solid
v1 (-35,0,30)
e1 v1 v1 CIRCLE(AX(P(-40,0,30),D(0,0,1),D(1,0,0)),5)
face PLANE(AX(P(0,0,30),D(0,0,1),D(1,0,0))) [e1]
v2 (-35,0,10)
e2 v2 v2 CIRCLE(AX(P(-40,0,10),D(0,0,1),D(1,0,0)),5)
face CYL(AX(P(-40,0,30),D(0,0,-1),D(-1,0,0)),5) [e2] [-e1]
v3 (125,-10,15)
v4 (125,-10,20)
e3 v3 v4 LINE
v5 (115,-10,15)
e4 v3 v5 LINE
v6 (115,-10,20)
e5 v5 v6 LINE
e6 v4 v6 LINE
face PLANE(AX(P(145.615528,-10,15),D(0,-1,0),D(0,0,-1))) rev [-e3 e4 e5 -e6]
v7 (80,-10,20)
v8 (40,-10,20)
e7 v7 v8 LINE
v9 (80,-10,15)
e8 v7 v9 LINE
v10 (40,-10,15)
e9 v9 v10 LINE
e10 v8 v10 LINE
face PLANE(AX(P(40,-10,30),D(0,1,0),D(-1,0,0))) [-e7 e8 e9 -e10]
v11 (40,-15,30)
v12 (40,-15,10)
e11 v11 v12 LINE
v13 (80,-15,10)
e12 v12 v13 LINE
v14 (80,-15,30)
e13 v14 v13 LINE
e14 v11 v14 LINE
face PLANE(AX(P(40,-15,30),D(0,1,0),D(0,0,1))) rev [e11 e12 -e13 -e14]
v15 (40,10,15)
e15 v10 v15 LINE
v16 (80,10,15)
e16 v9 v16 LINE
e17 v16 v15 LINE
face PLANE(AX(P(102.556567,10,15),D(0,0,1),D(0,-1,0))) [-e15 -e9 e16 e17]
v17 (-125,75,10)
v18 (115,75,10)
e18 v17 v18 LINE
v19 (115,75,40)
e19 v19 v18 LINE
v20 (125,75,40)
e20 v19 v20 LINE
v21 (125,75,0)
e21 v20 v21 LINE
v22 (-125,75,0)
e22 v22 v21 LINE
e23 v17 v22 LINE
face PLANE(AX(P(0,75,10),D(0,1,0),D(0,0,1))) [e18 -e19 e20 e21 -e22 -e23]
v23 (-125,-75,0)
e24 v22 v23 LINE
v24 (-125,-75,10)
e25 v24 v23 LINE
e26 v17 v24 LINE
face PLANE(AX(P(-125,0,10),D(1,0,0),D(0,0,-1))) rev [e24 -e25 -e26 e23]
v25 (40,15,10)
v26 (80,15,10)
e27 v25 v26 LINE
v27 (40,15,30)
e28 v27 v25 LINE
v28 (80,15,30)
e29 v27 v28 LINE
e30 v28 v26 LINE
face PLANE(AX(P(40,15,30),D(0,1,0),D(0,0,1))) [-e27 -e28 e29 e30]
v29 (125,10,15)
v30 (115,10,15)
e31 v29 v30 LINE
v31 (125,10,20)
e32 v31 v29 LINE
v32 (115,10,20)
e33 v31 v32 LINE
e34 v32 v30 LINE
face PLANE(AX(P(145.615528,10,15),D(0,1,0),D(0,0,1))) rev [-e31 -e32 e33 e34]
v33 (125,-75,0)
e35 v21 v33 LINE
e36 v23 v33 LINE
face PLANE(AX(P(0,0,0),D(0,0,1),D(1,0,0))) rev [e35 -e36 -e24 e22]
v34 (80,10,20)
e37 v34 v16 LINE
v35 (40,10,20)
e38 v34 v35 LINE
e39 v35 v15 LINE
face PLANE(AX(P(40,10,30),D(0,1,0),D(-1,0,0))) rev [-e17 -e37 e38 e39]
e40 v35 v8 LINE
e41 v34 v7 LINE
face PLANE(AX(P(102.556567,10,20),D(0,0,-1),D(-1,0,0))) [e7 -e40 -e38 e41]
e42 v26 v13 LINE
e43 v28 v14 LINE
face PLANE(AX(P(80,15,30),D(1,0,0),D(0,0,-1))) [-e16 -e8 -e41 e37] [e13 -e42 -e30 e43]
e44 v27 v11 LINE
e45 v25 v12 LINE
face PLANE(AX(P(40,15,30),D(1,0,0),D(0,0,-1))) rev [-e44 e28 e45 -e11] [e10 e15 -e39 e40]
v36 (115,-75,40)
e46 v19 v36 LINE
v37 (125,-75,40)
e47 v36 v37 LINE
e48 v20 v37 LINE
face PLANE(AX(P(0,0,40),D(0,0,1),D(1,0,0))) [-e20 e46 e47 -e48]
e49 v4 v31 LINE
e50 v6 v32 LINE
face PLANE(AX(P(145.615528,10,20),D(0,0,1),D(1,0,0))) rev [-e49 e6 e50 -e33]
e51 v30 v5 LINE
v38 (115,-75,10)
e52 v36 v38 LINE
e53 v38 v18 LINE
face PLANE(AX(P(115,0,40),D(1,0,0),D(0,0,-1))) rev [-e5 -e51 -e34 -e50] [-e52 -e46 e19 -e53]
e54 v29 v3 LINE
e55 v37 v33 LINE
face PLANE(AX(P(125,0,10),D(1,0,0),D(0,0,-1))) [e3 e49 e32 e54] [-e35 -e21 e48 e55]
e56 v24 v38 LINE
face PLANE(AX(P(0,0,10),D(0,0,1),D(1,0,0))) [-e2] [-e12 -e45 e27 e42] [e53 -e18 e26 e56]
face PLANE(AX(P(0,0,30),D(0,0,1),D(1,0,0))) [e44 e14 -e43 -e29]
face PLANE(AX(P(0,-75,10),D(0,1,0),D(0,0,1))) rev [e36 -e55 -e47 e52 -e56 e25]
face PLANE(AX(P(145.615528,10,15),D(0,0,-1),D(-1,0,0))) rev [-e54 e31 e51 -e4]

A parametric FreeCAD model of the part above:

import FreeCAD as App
import Part
import Sketcher

V = App.Vector
Q = App.Units.Quantity

doc = App.newDocument("Part")
body = doc.addObject("PartDesign::Body", "Body")

sketch1 = body.newObject("Sketcher::SketchObject", "Sketch")
sketch1.AttachmentSupport = (doc.getObject("XY_Plane"), [""])
sketch1.MapMode = "FlatFace"
sketch1.addGeometry(Part.LineSegment(V(-125, 75, 0), V(-125, -75, 0)), False)
sketch1.addGeometry(Part.LineSegment(V(-125, -75, 0), V(125, -75, 0)), False)
sketch1.addGeometry(Part.LineSegment(V(125, -75, 0), V(125, 75, 0)), False)
sketch1.addGeometry(Part.LineSegment(V(125, 75, 0), V(-125, 75, 0)), False)
sketch1.addGeometry(Part.LineSegment(V(80, -15, 0), V(40, -15, 0)), False)
sketch1.addGeometry(Part.LineSegment(V(40, -15, 0), V(40, -10, 0)), False)
sketch1.addGeometry(Part.LineSegment(V(40, -10, 0), V(80, -10, 0)), False)
sketch1.addGeometry(Part.LineSegment(V(80, -10, 0), V(80, -15, 0)), False)
sketch1.addGeometry(Part.Circle(V(-40, 0, 0), V(0, 0, 1), 5), False)
sketch1.addGeometry(Part.LineSegment(V(80, 10, 0), V(40, 10, 0)), False)
sketch1.addGeometry(Part.LineSegment(V(40, 10, 0), V(40, 15, 0)), False)
sketch1.addGeometry(Part.LineSegment(V(40, 15, 0), V(80, 15, 0)), False)
sketch1.addGeometry(Part.LineSegment(V(80, 15, 0), V(80, 10, 0)), False)
sketch1.addConstraint(Sketcher.Constraint("Coincident", 0, 2, 1, 1))
sketch1.addConstraint(Sketcher.Constraint("Coincident", 1, 2, 2, 1))
sketch1.addConstraint(Sketcher.Constraint("Coincident", 2, 2, 3, 1))
sketch1.addConstraint(Sketcher.Constraint("Coincident", 3, 2, 0, 1))
sketch1.addConstraint(Sketcher.Constraint("Coincident", 4, 2, 5, 1))
sketch1.addConstraint(Sketcher.Constraint("Coincident", 5, 2, 6, 1))
sketch1.addConstraint(Sketcher.Constraint("Coincident", 6, 2, 7, 1))
sketch1.addConstraint(Sketcher.Constraint("Coincident", 7, 2, 4, 1))
sketch1.addConstraint(Sketcher.Constraint("Coincident", 9, 2, 10, 1))
sketch1.addConstraint(Sketcher.Constraint("Coincident", 10, 2, 11, 1))
sketch1.addConstraint(Sketcher.Constraint("Coincident", 11, 2, 12, 1))
sketch1.addConstraint(Sketcher.Constraint("Coincident", 12, 2, 9, 1))
sketch1.addConstraint(Sketcher.Constraint("Vertical", 0))
sketch1.addConstraint(Sketcher.Constraint("Horizontal", 1))
sketch1.addConstraint(Sketcher.Constraint("Vertical", 2))
sketch1.addConstraint(Sketcher.Constraint("Horizontal", 3))
sketch1.addConstraint(Sketcher.Constraint("Horizontal", 4))
sketch1.addConstraint(Sketcher.Constraint("Vertical", 5))
sketch1.addConstraint(Sketcher.Constraint("Horizontal", 6))
sketch1.addConstraint(Sketcher.Constraint("Vertical", 7))
sketch1.addConstraint(Sketcher.Constraint("Horizontal", 9))
sketch1.addConstraint(Sketcher.Constraint("Vertical", 10))
sketch1.addConstraint(Sketcher.Constraint("Horizontal", 11))
sketch1.addConstraint(Sketcher.Constraint("Vertical", 12))
sketch1.addConstraint(Sketcher.Constraint("Symmetric", 0, 2, 2, 2, -1, 1))
sketch1.addConstraint(Sketcher.Constraint("Symmetric", 5, 2, 9, 2, -1))
sketch1.addConstraint(Sketcher.Constraint("Symmetric", 7, 2, 11, 2, -1))
sketch1.addConstraint(Sketcher.Constraint("PointOnObject", 8, 3, -1))
sketch1.addConstraint(Sketcher.Constraint("Diameter", 8, Q("10 mm")))
sketch1.addConstraint(Sketcher.Constraint("DistanceX", 1, 1, 1, 2, Q("250 mm")))
sketch1.addConstraint(Sketcher.Constraint("DistanceX", 4, 2, 4, 1, Q("40 mm")))
sketch1.addConstraint(Sketcher.Constraint("DistanceY", 0, 2, 0, 1, Q("150 mm")))
sketch1.addConstraint(Sketcher.Constraint("DistanceY", 5, 1, 5, 2, Q("5 mm")))
sketch1.addConstraint(Sketcher.Constraint("DistanceX", 8, 3, -1, 1, Q("40 mm")))
sketch1.addConstraint(Sketcher.Constraint("DistanceX", -1, 1, 4, 2, Q("40 mm")))
sketch1.addConstraint(Sketcher.Constraint("DistanceY", 4, 2, -1, 1, Q("15 mm")))
pad1 = body.newObject("PartDesign::Pad", "Pad")
pad1.Profile = sketch1
pad1.Length = 10

sketch2 = body.newObject("Sketcher::SketchObject", "Sketch001")
sketch2.AttachmentSupport = (doc.getObject("XY_Plane"), [""])
sketch2.MapMode = "FlatFace"
sketch2.addGeometry(Part.LineSegment(V(115, 75, 0), V(115, -75, 0)), False)
sketch2.addGeometry(Part.LineSegment(V(115, -75, 0), V(125, -75, 0)), False)
sketch2.addGeometry(Part.LineSegment(V(125, -75, 0), V(125, 75, 0)), False)
sketch2.addGeometry(Part.LineSegment(V(125, 75, 0), V(115, 75, 0)), False)
sketch2.addConstraint(Sketcher.Constraint("Coincident", 0, 2, 1, 1))
sketch2.addConstraint(Sketcher.Constraint("Coincident", 1, 2, 2, 1))
sketch2.addConstraint(Sketcher.Constraint("Coincident", 2, 2, 3, 1))
sketch2.addConstraint(Sketcher.Constraint("Coincident", 3, 2, 0, 1))
sketch2.addConstraint(Sketcher.Constraint("Vertical", 0))
sketch2.addConstraint(Sketcher.Constraint("Horizontal", 1))
sketch2.addConstraint(Sketcher.Constraint("Vertical", 2))
sketch2.addConstraint(Sketcher.Constraint("Horizontal", 3))
sketch2.addConstraint(Sketcher.Constraint("DistanceX", 1, 1, 1, 2, Q("10 mm")))
sketch2.addConstraint(Sketcher.Constraint("DistanceY", 0, 2, 0, 1, Q("150 mm")))
sketch2.addConstraint(Sketcher.Constraint("DistanceX", -1, 1, 0, 2, Q("115 mm")))
sketch2.addConstraint(Sketcher.Constraint("DistanceY", 0, 2, -1, 1, Q("75 mm")))
pad2 = body.newObject("PartDesign::Pad", "Pad001")
pad2.Profile = sketch2
pad2.Length = 40

sketch3 = body.newObject("Sketcher::SketchObject", "Sketch002")
sketch3.AttachmentSupport = (doc.getObject("XY_Plane"), [""])
sketch3.MapMode = "FlatFace"
sketch3.addGeometry(Part.Circle(V(-40, 0, 0), V(0, 0, 1), 5), False)
sketch3.addConstraint(Sketcher.Constraint("PointOnObject", 0, 3, -1))
sketch3.addConstraint(Sketcher.Constraint("Diameter", 0, Q("10 mm")))
sketch3.addConstraint(Sketcher.Constraint("DistanceX", 0, 3, -1, 1, Q("40 mm")))
pad3 = body.newObject("PartDesign::Pad", "Pad002")
pad3.Profile = sketch3
pad3.Length = 30

sketch4 = body.newObject("Sketcher::SketchObject", "Sketch003")
sketch4.AttachmentSupport = (doc.getObject("XY_Plane"), [""])
sketch4.MapMode = "FlatFace"
sketch4.addGeometry(Part.LineSegment(V(40, -10, 0), V(40, -15, 0)), False)
sketch4.addGeometry(Part.LineSegment(V(40, -15, 0), V(80, -15, 0)), False)
sketch4.addGeometry(Part.LineSegment(V(80, -15, 0), V(80, -10, 0)), False)
sketch4.addGeometry(Part.LineSegment(V(80, -10, 0), V(40, -10, 0)), False)
sketch4.addGeometry(Part.LineSegment(V(40, 15, 0), V(40, 10, 0)), False)
sketch4.addGeometry(Part.LineSegment(V(40, 10, 0), V(80, 10, 0)), False)
sketch4.addGeometry(Part.LineSegment(V(80, 10, 0), V(80, 15, 0)), False)
sketch4.addGeometry(Part.LineSegment(V(80, 15, 0), V(40, 15, 0)), False)
sketch4.addConstraint(Sketcher.Constraint("Coincident", 0, 2, 1, 1))
sketch4.addConstraint(Sketcher.Constraint("Coincident", 1, 2, 2, 1))
sketch4.addConstraint(Sketcher.Constraint("Coincident", 2, 2, 3, 1))
sketch4.addConstraint(Sketcher.Constraint("Coincident", 3, 2, 0, 1))
sketch4.addConstraint(Sketcher.Constraint("Coincident", 4, 2, 5, 1))
sketch4.addConstraint(Sketcher.Constraint("Coincident", 5, 2, 6, 1))
sketch4.addConstraint(Sketcher.Constraint("Coincident", 6, 2, 7, 1))
sketch4.addConstraint(Sketcher.Constraint("Coincident", 7, 2, 4, 1))
sketch4.addConstraint(Sketcher.Constraint("Vertical", 0))
sketch4.addConstraint(Sketcher.Constraint("Horizontal", 1))
sketch4.addConstraint(Sketcher.Constraint("Vertical", 2))
sketch4.addConstraint(Sketcher.Constraint("Horizontal", 3))
sketch4.addConstraint(Sketcher.Constraint("Vertical", 4))
sketch4.addConstraint(Sketcher.Constraint("Horizontal", 5))
sketch4.addConstraint(Sketcher.Constraint("Vertical", 6))
sketch4.addConstraint(Sketcher.Constraint("Horizontal", 7))
sketch4.addConstraint(Sketcher.Constraint("Symmetric", 3, 2, 4, 2, -1))
sketch4.addConstraint(Sketcher.Constraint("Symmetric", 1, 2, 6, 2, -1))
sketch4.addConstraint(Sketcher.Constraint("DistanceX", 1, 1, 1, 2, Q("40 mm")))
sketch4.addConstraint(Sketcher.Constraint("DistanceY", 0, 2, 0, 1, Q("5 mm")))
sketch4.addConstraint(Sketcher.Constraint("DistanceX", -1, 1, 0, 2, Q("40 mm")))
sketch4.addConstraint(Sketcher.Constraint("DistanceY", 0, 2, -1, 1, Q("15 mm")))
pad4 = body.newObject("PartDesign::Pad", "Pad003")
pad4.Profile = sketch4
pad4.Length = 30

sketch5 = body.newObject("Sketcher::SketchObject", "Sketch004")
sketch5.AttachmentSupport = (doc.getObject("YZ_Plane"), [""])
sketch5.MapMode = "FlatFace"
sketch5.AttachmentOffset = App.Placement(V(0, 0, 40), App.Rotation())
sketch5.addGeometry(Part.LineSegment(V(10, 10, 0), V(-10, 10, 0)), False)
sketch5.addGeometry(Part.LineSegment(V(-10, 10, 0), V(-10, 15, 0)), False)
sketch5.addGeometry(Part.LineSegment(V(-10, 15, 0), V(10, 15, 0)), False)
sketch5.addGeometry(Part.LineSegment(V(10, 15, 0), V(10, 10, 0)), False)
sketch5.addGeometry(Part.LineSegment(V(10, 20, 0), V(-10.218771, 20, 0)), False)
sketch5.addGeometry(Part.LineSegment(V(-10.218771, 20, 0), V(-10.218771, 30, 0)), False)
sketch5.addGeometry(Part.LineSegment(V(-10.218771, 30, 0), V(10, 30, 0)), False)
sketch5.addGeometry(Part.LineSegment(V(10, 30, 0), V(10, 20, 0)), False)
sketch5.addConstraint(Sketcher.Constraint("Coincident", 0, 2, 1, 1))
sketch5.addConstraint(Sketcher.Constraint("Coincident", 1, 2, 2, 1))
sketch5.addConstraint(Sketcher.Constraint("Coincident", 2, 2, 3, 1))
sketch5.addConstraint(Sketcher.Constraint("Coincident", 3, 2, 0, 1))
sketch5.addConstraint(Sketcher.Constraint("Coincident", 4, 2, 5, 1))
sketch5.addConstraint(Sketcher.Constraint("Coincident", 5, 2, 6, 1))
sketch5.addConstraint(Sketcher.Constraint("Coincident", 6, 2, 7, 1))
sketch5.addConstraint(Sketcher.Constraint("Coincident", 7, 2, 4, 1))
sketch5.addConstraint(Sketcher.Constraint("Horizontal", 0))
sketch5.addConstraint(Sketcher.Constraint("Vertical", 1))
sketch5.addConstraint(Sketcher.Constraint("Horizontal", 2))
sketch5.addConstraint(Sketcher.Constraint("Vertical", 3))
sketch5.addConstraint(Sketcher.Constraint("Horizontal", 4))
sketch5.addConstraint(Sketcher.Constraint("Vertical", 5))
sketch5.addConstraint(Sketcher.Constraint("Horizontal", 6))
sketch5.addConstraint(Sketcher.Constraint("Vertical", 7))
sketch5.addConstraint(Sketcher.Constraint("Vertical", 3, 2, 6, 2))
sketch5.addConstraint(Sketcher.Constraint("DistanceX", 0, 2, 0, 1, Q("20 mm")))
sketch5.addConstraint(Sketcher.Constraint("DistanceY", 1, 1, 1, 2, Q("5 mm")))
sketch5.addConstraint(Sketcher.Constraint("DistanceY", 5, 1, 5, 2, Q("10 mm")))
sketch5.addConstraint(Sketcher.Constraint("DistanceX", 0, 2, -1, 1, Q("10 mm")))
sketch5.addConstraint(Sketcher.Constraint("DistanceY", -1, 1, 0, 2, Q("10 mm")))
sketch5.addConstraint(Sketcher.Constraint("DistanceY", -1, 1, 4, 2, Q("20 mm")))
sketch5.addConstraint(Sketcher.Constraint("DistanceX", 4, 2, 4, 1, Q("20.218771 mm")))
pad5 = body.newObject("PartDesign::Pad", "Pad004")
pad5.Profile = sketch5
pad5.Length = 40

sketch6 = body.newObject("Sketcher::SketchObject", "Sketch005")
sketch6.AttachmentSupport = (doc.getObject("YZ_Plane"), [""])
sketch6.MapMode = "FlatFace"
sketch6.AttachmentOffset = App.Placement(V(0, 0, 115), App.Rotation())
sketch6.addGeometry(Part.LineSegment(V(10, 15, 0), V(-10, 15, 0)), False)
sketch6.addGeometry(Part.LineSegment(V(-10, 15, 0), V(-10, 20, 0)), False)
sketch6.addGeometry(Part.LineSegment(V(-10, 20, 0), V(10, 20, 0)), False)
sketch6.addGeometry(Part.LineSegment(V(10, 20, 0), V(10, 15, 0)), False)
sketch6.addConstraint(Sketcher.Constraint("Coincident", 0, 2, 1, 1))
sketch6.addConstraint(Sketcher.Constraint("Coincident", 1, 2, 2, 1))
sketch6.addConstraint(Sketcher.Constraint("Coincident", 2, 2, 3, 1))
sketch6.addConstraint(Sketcher.Constraint("Coincident", 3, 2, 0, 1))
sketch6.addConstraint(Sketcher.Constraint("Horizontal", 0))
sketch6.addConstraint(Sketcher.Constraint("Vertical", 1))
sketch6.addConstraint(Sketcher.Constraint("Horizontal", 2))
sketch6.addConstraint(Sketcher.Constraint("Vertical", 3))
sketch6.addConstraint(Sketcher.Constraint("DistanceX", 0, 2, 0, 1, Q("20 mm")))
sketch6.addConstraint(Sketcher.Constraint("DistanceY", 1, 1, 1, 2, Q("5 mm")))
sketch6.addConstraint(Sketcher.Constraint("DistanceX", 0, 2, -1, 1, Q("10 mm")))
sketch6.addConstraint(Sketcher.Constraint("DistanceY", -1, 1, 0, 2, Q("15 mm")))
pocket1 = body.newObject("PartDesign::Pocket", "Pocket")
pocket1.Profile = sketch6
pocket1.Length = 10
pocket1.Reversed = True

doc.recompute()
